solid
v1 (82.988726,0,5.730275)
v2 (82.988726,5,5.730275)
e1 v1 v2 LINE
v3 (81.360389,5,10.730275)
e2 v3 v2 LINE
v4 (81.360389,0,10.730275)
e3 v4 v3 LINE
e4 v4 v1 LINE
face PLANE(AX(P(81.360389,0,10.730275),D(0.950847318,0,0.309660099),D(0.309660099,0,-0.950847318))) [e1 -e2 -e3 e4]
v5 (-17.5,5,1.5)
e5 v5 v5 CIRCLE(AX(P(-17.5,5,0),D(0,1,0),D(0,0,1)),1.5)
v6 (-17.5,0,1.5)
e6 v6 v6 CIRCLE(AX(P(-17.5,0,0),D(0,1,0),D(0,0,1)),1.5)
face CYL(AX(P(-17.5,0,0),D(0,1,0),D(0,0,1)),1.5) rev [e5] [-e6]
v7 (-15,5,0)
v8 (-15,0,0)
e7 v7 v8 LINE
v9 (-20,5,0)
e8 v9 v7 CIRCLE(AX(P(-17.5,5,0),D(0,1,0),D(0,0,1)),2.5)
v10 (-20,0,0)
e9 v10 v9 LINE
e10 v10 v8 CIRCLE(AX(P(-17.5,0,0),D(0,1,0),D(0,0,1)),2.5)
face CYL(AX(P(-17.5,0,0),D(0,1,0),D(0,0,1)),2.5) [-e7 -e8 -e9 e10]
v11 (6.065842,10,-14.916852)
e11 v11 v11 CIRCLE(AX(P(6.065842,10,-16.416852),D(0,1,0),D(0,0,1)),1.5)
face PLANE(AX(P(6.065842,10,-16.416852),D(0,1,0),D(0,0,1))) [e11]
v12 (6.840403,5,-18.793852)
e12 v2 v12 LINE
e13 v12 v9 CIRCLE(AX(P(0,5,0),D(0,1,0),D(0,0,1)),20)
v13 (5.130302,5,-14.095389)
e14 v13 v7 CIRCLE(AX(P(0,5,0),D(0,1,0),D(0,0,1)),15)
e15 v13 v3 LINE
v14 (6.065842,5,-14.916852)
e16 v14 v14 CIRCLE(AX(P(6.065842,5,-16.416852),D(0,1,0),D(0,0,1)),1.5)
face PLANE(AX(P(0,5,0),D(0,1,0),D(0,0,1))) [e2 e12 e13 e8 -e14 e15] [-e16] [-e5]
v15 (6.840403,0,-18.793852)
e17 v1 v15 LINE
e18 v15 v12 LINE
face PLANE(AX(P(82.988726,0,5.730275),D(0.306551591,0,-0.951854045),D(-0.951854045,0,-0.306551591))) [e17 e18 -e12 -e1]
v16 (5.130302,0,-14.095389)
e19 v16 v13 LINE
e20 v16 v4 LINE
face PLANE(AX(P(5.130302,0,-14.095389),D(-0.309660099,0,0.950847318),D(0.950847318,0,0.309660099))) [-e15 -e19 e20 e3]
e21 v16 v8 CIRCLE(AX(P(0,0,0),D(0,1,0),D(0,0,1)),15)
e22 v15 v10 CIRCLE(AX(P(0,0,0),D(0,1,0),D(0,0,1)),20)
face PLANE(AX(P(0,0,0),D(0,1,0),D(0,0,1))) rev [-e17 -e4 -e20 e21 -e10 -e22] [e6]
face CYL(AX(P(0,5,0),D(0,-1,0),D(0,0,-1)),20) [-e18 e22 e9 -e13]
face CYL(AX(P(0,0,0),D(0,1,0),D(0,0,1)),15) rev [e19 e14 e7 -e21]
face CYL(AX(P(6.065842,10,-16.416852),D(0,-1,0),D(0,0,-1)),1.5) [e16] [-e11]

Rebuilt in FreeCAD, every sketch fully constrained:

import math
import FreeCAD as App
import Part
import Sketcher
Q = App.Units.Quantity

doc = App.newDocument("Part")
body = doc.addObject("PartDesign::Body", "Body")

# Sketch on XZ plane
sketch1 = body.newObject("Sketcher::SketchObject", "Sketch")
sketch1.AttachmentSupport = (doc.getObject("XZ_Plane"), [""])
sketch1.MapMode = "FlatFace"
sketch1.addGeometry(Part.Circle(App.Vector(0, 0, 0), App.Vector(0, 0, 1), 20), False)
sketch1.addConstraint(Sketcher.Constraint("Coincident", 0, 3, -1, 1))
sketch1.addConstraint(Sketcher.Constraint("Diameter", 0, Q("40 mm")))
pad1 = body.newObject("PartDesign::Pad", "Pad")
pad1.Profile = sketch1
pad1.Length = 5
pad1.Reversed = True

# Sketch on XZ plane
sketch2 = body.newObject("Sketcher::SketchObject", "Sketch001")
sketch2.AttachmentSupport = (doc.getObject("XZ_Plane"), [""])
sketch2.MapMode = "FlatFace"
sketch2.AttachmentOffset = App.Placement(App.Vector(0, 0, -5), App.Rotation())
sketch2.addGeometry(Part.Circle(App.Vector(0, 0, 0), App.Vector(0, 0, 1), 15), False)
sketch2.addConstraint(Sketcher.Constraint("Coincident", 0, 3, -1, 1))
sketch2.addConstraint(Sketcher.Constraint("Diameter", 0, Q("30 mm")))
pocket1 = body.newObject("PartDesign::Pocket", "Pocket")
pocket1.Profile = sketch2
pocket1.Length = 5
pocket1.Reversed = True

# Sketch on XZ plane
sketch3 = body.newObject("Sketcher::SketchObject", "Sketch002")
sketch3.AttachmentSupport = (doc.getObject("XZ_Plane"), [""])
sketch3.MapMode = "FlatFace"
sketch3.addGeometry(Part.LineSegment(App.Vector(7, -19, 0), App.Vector(0, 0, 0)), False)
sketch3.addGeometry(Part.LineSegment(App.Vector(0, 0, 0), App.Vector(-20, 0, 0)), False)
sketch3.addGeometry(Part.ArcOfCircle(Part.Circle(App.Vector(0, 0, 0), App.Vector(0, 0, 1), 20), math.radians(-70), math.radians(180)), False)
sketch3.addConstraint(Sketcher.Constraint("Coincident", 0, 2, 1, 1))
sketch3.addConstraint(Sketcher.Constraint("Coincident", 1, 2, 2, 2))
sketch3.addConstraint(Sketcher.Constraint("Coincident", 2, 1, 0, 1))
sketch3.addConstraint(Sketcher.Constraint("Horizontal", 1))
sketch3.addConstraint(Sketcher.Constraint("Coincident", 2, 3, -1, 1))
sketch3.addConstraint(Sketcher.Constraint("Coincident", 0, 2, -1, 1))
sketch3.addConstraint(Sketcher.Constraint("Radius", 2, Q("20 mm")))
sketch3.addConstraint(Sketcher.Constraint("Angle", 0, Q("110 deg")))
pocket2 = body.newObject("PartDesign::Pocket", "Pocket001")
pocket2.Profile = sketch3
pocket2.Length = 5

# Sketch on XZ plane
sketch4 = body.newObject("Sketcher::SketchObject", "Sketch003")
sketch4.AttachmentSupport = (doc.getObject("XZ_Plane"), [""])
sketch4.MapMode = "FlatFace"
sketch4.AttachmentOffset = App.Placement(App.Vector(0, 0, -5), App.Rotation())
sketch4.addGeometry(Part.LineSegment(App.Vector(5, -14, 0), App.Vector(81, 11, 0)), False)
sketch4.addGeometry(Part.LineSegment(App.Vector(81, 11, 0), App.Vector(83, 6, 0)), False)
sketch4.addGeometry(Part.LineSegment(App.Vector(83, 6, 0), App.Vector(7, -19, 0)), False)
sketch4.addGeometry(Part.LineSegment(App.Vector(7, -19, 0), App.Vector(5, -14, 0)), False)
sketch4.addConstraint(Sketcher.Constraint("Coincident", 0, 2, 1, 1))
sketch4.addConstraint(Sketcher.Constraint("Coincident", 1, 2, 2, 1))
sketch4.addConstraint(Sketcher.Constraint("Coincident", 2, 2, 3, 1))
sketch4.addConstraint(Sketcher.Constraint("Coincident", 3, 2, 0, 1))
sketch4.addConstraint(Sketcher.Constraint("Perpendicular", 0, 1))
sketch4.addConstraint(Sketcher.Constraint("Angle", 3, Q("110 deg")))
sketch4.addConstraint(Sketcher.Constraint("Distance", 2, Q("80 mm")))
sketch4.addConstraint(Sketcher.Constraint("Distance", 3, Q("5 mm")))
sketch4.addConstraint(Sketcher.Constraint("DistanceY", 1, 2, 0, 2, Q("5 mm")))
sketch4.addConstraint(Sketcher.Constraint("Distance", 0, Q("80.170691 mm")))
sketch4.addConstraint(Sketcher.Constraint("DistanceX", -1, 1, 0, 2, Q("81.360389 mm")))
sketch4.addConstraint(Sketcher.Constraint("DistanceY", 3, 2, -1, 1, Q("14.095389 mm")))
pad2 = body.newObject("PartDesign::Pad", "Pad001")
pad2.Profile = sketch4
pad2.Length = 5

# Sketch on XZ plane
sketch5 = body.newObject("Sketcher::SketchObject", "Sketch004")
sketch5.AttachmentSupport = (doc.getObject("XZ_Plane"), [""])
sketch5.MapMode = "FlatFace"
sketch5.AttachmentOffset = App.Placement(App.Vector(0, 0, -5), App.Rotation())
sketch5.addGeometry(Part.LineSegment(App.Vector(-15, 0, 0), App.Vector(-20, 0, 0)), False)
sketch5.addGeometry(Part.ArcOfCircle(Part.Circle(App.Vector(-17.5, 0, 0), App.Vector(0, 0, 1), 2.5), math.radians(0), math.radians(180)), False)
sketch5.addConstraint(Sketcher.Constraint("Coincident", 0, 1, 1, 1))
sketch5.addConstraint(Sketcher.Constraint("Coincident", 1, 2, 0, 2))
sketch5.addConstraint(Sketcher.Constraint("Horizontal", 0))
sketch5.addConstraint(Sketcher.Constraint("PointOnObject", 1, 3, -1))
sketch5.addConstraint(Sketcher.Constraint("PointOnObject", 0, 1, -1))
sketch5.addConstraint(Sketcher.Constraint("Radius", 1, Q("2.5 mm")))
sketch5.addConstraint(Sketcher.Constraint("DistanceX", 0, 1, -1, 1, Q("15 mm")))
pad3 = body.newObject("PartDesign::Pad", "Pad002")
pad3.Profile = sketch5
pad3.Length = 5

# Sketch on XZ plane
sketch6 = body.newObject("Sketcher::SketchObject", "Sketch005")
sketch6.AttachmentSupport = (doc.getObject("XZ_Plane"), [""])
sketch6.MapMode = "FlatFace"
sketch6.AttachmentOffset = App.Placement(App.Vector(0, 0, -5), App.Rotation())
sketch6.addGeometry(Part.Circle(App.Vector(-17.5, 0, 0), App.Vector(0, 0, 1), 1.5), False)
sketch6.addConstraint(Sketcher.Constraint("PointOnObject", 0, 3, -1))
sketch6.addConstraint(Sketcher.Constraint("Diameter", 0, Q("3 mm")))
sketch6.addConstraint(Sketcher.Constraint("DistanceX", 0, 3, -1, 1, Q("17.5 mm")))
pocket3 = body.newObject("PartDesign::Pocket", "Pocket002")
pocket3.Profile = sketch6
pocket3.Length = 5
pocket3.Reversed = True

# Sketch on XZ plane
sketch7 = body.newObject("Sketcher::SketchObject", "Sketch006")
sketch7.AttachmentSupport = (doc.getObject("XZ_Plane"), [""])
sketch7.MapMode = "FlatFace"
sketch7.AttachmentOffset = App.Placement(App.Vector(0, 0, -5), App.Rotation())
sketch7.addGeometry(Part.Circle(App.Vector(6.1, -16.4, 0), App.Vector(0, 0, 1), 1.5), False)
sketch7.addConstraint(Sketcher.Constraint("Diameter", 0, Q("3 mm")))
sketch7.addConstraint(Sketcher.Constraint("DistanceX", -1, 1, 0, 3, Q("6.065842 mm")))
sketch7.addConstraint(Sketcher.Constraint("DistanceY", 0, 3, -1, 1, Q("16.416852 mm")))
pad4 = body.newObject("PartDesign::Pad", "Pad003")
pad4.Profile = sketch7
pad4.Length = 5
pad4.Reversed = True

doc.recompute()
